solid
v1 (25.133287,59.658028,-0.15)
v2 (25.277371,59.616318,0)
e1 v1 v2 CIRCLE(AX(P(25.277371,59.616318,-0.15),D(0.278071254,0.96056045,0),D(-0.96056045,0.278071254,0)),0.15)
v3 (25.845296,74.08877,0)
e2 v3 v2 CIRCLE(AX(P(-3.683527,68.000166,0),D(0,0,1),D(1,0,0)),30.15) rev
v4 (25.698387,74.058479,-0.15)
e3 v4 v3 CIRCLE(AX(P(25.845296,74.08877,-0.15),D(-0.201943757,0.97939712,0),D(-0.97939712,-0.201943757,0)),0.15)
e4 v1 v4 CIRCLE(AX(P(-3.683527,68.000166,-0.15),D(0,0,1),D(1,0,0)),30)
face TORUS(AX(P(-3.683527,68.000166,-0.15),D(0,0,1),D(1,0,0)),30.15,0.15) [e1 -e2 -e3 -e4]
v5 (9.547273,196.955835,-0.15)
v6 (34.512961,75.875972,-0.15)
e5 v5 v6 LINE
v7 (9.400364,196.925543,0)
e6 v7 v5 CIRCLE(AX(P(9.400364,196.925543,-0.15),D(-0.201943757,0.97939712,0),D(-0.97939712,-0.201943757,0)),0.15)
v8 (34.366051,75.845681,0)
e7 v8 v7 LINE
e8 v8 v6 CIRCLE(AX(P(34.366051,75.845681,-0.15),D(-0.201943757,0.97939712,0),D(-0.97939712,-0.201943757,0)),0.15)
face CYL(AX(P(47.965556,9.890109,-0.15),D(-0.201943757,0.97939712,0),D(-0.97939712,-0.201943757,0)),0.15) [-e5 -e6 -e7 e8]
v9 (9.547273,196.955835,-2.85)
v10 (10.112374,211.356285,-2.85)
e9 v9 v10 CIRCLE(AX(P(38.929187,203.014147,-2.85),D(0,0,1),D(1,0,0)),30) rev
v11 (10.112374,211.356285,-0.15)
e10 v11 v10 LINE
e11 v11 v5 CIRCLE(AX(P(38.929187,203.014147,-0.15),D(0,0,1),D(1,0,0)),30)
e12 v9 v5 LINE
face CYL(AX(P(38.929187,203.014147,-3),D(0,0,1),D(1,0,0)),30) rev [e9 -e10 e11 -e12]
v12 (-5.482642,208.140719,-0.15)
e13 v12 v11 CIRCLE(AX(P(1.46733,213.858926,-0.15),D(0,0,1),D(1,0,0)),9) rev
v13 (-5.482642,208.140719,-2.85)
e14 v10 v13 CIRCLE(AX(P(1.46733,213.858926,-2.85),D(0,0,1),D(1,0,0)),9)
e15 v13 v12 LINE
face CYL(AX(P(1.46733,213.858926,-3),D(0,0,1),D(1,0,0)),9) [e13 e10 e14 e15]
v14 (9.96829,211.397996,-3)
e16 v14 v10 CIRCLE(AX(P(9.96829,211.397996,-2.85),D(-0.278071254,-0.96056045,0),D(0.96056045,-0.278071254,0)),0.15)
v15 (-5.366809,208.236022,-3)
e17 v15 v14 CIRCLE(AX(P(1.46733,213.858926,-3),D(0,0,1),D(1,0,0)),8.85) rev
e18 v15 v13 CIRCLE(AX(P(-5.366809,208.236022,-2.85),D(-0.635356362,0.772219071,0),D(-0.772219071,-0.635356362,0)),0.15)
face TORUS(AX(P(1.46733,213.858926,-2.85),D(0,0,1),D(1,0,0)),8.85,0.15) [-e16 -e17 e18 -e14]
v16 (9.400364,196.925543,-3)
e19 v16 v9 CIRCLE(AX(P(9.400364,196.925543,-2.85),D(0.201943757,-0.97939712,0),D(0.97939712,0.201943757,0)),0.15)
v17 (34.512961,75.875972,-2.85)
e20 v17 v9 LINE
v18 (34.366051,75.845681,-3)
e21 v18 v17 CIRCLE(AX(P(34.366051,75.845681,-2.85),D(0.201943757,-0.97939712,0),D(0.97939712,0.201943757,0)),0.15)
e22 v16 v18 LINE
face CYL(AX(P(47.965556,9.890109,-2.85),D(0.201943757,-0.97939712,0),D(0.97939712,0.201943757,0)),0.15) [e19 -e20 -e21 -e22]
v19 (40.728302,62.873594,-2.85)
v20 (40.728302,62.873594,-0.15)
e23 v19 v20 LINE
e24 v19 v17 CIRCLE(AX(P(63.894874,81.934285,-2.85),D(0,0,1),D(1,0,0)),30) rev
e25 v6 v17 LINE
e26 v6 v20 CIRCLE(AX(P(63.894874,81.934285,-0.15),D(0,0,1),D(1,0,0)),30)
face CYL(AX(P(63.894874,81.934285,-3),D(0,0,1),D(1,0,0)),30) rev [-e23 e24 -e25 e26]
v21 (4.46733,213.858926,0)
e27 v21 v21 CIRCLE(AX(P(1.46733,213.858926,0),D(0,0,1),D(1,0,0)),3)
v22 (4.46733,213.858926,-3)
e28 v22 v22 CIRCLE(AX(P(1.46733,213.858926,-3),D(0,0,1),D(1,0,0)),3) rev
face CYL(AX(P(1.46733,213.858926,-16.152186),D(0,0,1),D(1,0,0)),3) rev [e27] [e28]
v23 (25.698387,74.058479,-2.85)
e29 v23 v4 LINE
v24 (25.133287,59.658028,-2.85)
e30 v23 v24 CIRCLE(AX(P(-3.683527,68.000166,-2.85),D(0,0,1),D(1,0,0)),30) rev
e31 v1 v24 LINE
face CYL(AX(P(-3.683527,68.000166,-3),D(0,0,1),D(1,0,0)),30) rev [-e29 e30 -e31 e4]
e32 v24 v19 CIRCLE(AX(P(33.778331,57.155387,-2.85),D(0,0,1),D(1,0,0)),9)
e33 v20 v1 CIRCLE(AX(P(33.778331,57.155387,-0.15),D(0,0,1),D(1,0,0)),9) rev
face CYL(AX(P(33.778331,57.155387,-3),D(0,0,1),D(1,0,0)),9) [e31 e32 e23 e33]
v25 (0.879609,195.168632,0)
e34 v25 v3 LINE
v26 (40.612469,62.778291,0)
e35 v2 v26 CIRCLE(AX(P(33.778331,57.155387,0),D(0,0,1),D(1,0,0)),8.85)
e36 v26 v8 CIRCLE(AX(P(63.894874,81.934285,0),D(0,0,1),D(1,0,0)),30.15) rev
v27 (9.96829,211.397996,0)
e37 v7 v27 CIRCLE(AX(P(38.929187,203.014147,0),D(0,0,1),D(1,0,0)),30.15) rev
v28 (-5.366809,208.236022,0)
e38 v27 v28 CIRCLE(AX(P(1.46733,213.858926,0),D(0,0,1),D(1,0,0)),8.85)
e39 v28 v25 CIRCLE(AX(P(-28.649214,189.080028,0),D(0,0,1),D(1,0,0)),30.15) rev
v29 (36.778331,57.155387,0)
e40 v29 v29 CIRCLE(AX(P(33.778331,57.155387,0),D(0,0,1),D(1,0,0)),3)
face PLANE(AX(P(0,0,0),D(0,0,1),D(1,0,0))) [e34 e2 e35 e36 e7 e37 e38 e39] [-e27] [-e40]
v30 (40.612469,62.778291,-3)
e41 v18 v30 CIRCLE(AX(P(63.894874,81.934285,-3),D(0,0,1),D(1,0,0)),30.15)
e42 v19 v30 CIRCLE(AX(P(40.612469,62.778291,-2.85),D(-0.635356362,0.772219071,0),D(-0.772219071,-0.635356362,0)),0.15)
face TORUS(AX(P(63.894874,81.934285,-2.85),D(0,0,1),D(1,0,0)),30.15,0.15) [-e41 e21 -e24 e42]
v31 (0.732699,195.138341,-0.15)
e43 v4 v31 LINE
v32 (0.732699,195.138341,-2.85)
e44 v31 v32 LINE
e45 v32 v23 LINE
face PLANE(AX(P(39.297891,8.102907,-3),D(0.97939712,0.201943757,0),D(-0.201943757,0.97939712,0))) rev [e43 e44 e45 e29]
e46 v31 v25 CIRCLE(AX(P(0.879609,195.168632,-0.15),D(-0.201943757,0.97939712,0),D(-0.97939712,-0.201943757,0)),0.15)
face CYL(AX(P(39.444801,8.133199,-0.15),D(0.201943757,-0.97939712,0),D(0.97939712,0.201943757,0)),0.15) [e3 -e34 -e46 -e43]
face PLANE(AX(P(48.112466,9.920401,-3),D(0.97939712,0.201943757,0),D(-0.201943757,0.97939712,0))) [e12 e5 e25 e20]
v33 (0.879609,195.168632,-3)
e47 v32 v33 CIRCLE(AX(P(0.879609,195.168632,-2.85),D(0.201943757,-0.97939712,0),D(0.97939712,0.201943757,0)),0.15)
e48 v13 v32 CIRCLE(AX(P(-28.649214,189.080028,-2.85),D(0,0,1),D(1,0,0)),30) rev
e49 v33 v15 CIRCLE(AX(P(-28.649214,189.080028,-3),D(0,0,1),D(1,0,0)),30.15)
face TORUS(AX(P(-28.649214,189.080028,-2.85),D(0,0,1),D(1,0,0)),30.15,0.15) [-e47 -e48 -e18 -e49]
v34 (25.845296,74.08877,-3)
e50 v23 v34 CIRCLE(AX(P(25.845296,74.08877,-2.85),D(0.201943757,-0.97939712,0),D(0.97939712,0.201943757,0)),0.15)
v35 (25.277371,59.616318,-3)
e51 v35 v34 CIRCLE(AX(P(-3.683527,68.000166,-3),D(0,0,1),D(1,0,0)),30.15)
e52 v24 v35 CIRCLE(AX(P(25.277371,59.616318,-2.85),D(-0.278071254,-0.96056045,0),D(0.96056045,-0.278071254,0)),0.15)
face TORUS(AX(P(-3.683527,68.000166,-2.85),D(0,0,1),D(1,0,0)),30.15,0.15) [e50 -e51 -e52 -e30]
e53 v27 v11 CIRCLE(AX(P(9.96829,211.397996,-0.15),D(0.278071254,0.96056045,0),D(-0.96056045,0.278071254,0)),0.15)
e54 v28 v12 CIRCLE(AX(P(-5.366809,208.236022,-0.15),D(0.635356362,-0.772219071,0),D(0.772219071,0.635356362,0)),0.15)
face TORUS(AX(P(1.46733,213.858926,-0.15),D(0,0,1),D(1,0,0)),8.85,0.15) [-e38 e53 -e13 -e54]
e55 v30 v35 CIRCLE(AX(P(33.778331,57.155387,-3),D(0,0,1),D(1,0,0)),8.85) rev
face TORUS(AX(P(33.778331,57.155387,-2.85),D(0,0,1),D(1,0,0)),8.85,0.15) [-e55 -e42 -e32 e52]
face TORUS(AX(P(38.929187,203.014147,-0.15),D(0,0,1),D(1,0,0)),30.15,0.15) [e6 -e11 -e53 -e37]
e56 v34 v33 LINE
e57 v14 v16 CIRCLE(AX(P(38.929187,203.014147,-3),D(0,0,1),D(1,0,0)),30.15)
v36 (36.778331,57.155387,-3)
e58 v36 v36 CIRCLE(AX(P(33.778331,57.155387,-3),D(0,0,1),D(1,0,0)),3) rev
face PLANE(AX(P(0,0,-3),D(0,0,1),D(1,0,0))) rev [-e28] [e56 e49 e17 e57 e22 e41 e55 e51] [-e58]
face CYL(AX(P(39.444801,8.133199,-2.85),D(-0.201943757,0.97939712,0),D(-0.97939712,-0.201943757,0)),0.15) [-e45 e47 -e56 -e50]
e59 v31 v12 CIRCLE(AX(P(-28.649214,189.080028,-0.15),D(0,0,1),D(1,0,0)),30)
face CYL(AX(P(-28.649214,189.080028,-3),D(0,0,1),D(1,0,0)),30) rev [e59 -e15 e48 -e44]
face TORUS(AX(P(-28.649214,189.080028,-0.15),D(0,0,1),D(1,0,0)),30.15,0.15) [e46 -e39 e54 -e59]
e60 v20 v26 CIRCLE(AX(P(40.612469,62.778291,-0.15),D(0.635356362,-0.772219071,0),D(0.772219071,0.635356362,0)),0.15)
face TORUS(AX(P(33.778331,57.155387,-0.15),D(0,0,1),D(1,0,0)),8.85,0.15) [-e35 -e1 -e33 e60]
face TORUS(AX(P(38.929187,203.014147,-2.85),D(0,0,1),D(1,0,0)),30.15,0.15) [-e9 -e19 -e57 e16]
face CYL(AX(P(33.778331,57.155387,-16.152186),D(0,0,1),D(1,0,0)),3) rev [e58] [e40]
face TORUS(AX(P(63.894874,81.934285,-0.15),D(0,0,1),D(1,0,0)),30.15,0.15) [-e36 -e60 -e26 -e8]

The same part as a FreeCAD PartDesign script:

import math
import FreeCAD as App
import Part
import Sketcher

V = App.Vector
Q = App.Units.Quantity


def edges_at(feature, points):
    """Names of the edges that pass closest to the given points."""
    edges = feature.Shape.Edges
    near = lambda p: min(range(len(edges)), key=lambda i: edges[i].distToShape(Part.Vertex(*p))[0])
    return sorted({f"Edge{near(p) + 1}" for p in points})

doc = App.newDocument("Part")
body = doc.addObject("PartDesign::Body", "Body")

sketch1 = body.newObject("Sketcher::SketchObject", "Sketch")
sketch1.AttachmentSupport = (doc.getObject("XY_Plane"), [""])
sketch1.MapMode = "FlatFace"
sketch1.addGeometry(Part.ArcOfCircle(Part.Circle(V(1.5, 213.9, 0), V(0, 0, 1), 9), math.radians(-48), math.radians(252)), False)
sketch1.addGeometry(Part.LineSegment(V(-1.4, 205.3, 0), V(27.8, 63.9, 0)), False)
sketch1.addGeometry(Part.ArcOfCircle(Part.Circle(V(33.8, 57.2, 0), V(0, 0, 1), 9), math.radians(132), math.radians(432)), False)
sketch1.addGeometry(Part.LineSegment(V(36.6, 65.7, 0), V(7.4, 207.1, 0)), False)
sketch1.addGeometry(Part.ArcOfCircle(Part.Circle(V(33.8, 57.2, 0), V(0, 0, 1), 4.5), math.radians(12), math.radians(192)), False)
sketch1.addGeometry(Part.ArcOfCircle(Part.Circle(V(33.8, 57.2, 0), V(0, 0, 1), 4.5), math.radians(-168), math.radians(12)), False)
sketch1.addGeometry(Part.ArcOfCircle(Part.Circle(V(1.5, 213.9, 0), V(0, 0, 1), 4.5), math.radians(12), math.radians(192)), False)
sketch1.addGeometry(Part.ArcOfCircle(Part.Circle(V(1.5, 213.9, 0), V(0, 0, 1), 4.5), math.radians(-168), math.radians(12)), False)
sketch1.addConstraint(Sketcher.Constraint("Coincident", 0, 2, 1, 1))
sketch1.addConstraint(Sketcher.Constraint("Coincident", 1, 2, 2, 1))
sketch1.addConstraint(Sketcher.Constraint("Coincident", 2, 2, 3, 1))
sketch1.addConstraint(Sketcher.Constraint("Coincident", 3, 2, 0, 1))
sketch1.addConstraint(Sketcher.Constraint("Tangent", 4, 1, 5, 2))
sketch1.addConstraint(Sketcher.Constraint("Coincident", 5, 1, 4, 2))
sketch1.addConstraint(Sketcher.Constraint("Tangent", 6, 1, 7, 2))
sketch1.addConstraint(Sketcher.Constraint("Coincident", 7, 1, 6, 2))
sketch1.addConstraint(Sketcher.Constraint("Coincident", 4, 3, 2, 3))
sketch1.addConstraint(Sketcher.Constraint("Coincident", 6, 3, 0, 3))
sketch1.addConstraint(Sketcher.Constraint("Equal", 0, 2))
sketch1.addConstraint(Sketcher.Constraint("Equal", 5, 6))
sketch1.addConstraint(Sketcher.Constraint("Parallel", 1, 3))
sketch1.addConstraint(Sketcher.Constraint("Equal", 1, 3))
sketch1.addConstraint(Sketcher.Constraint("Radius", 0, Q("9 mm")))
sketch1.addConstraint(Sketcher.Constraint("Radius", 4, Q("4.5 mm")))
sketch1.addConstraint(Sketcher.Constraint("DistanceX", 0, 3, 2, 3, Q("32.311001 mm")))
sketch1.addConstraint(Sketcher.Constraint("DistanceY", 2, 3, 1, 2, Q("6.724898 mm")))
sketch1.addConstraint(Sketcher.Constraint("DistanceX", -1, 1, 0, 3, Q("1.46733 mm")))
sketch1.addConstraint(Sketcher.Constraint("DistanceX", 0, 2, -1, 1, Q("1.365962 mm")))
sketch1.addConstraint(Sketcher.Constraint("DistanceY", -1, 1, 2, 2, Q("65.697779 mm")))
sketch1.addConstraint(Sketcher.Constraint("DistanceY", -1, 1, 3, 2, Q("207.134028 mm")))
sketch1.addConstraint(Sketcher.Constraint("DistanceY", -1, 1, 5, 1, Q("56.24664 mm")))
sketch1.addConstraint(Sketcher.Constraint("DistanceY", -1, 1, 7, 1, Q("212.950179 mm")))
sketch1.addConstraint(Sketcher.Constraint("DistanceX", 1, 2, 4, 1, Q("10.38857 mm")))
sketch1.addConstraint(Sketcher.Constraint("DistanceX", 0, 2, 6, 1, Q("7.240578 mm")))
pad1 = body.newObject("PartDesign::Pad", "Pad")
pad1.Profile = sketch1
pad1.Length = 3
pad1.Reversed = True
doc.recompute()

fillet = body.newObject("PartDesign::Fillet", "Fillet")
fillet.Base = (pad1, edges_at(pad1, [
    (-1.366, 205.317, -1.5),
    (7.449, 207.134, -1.5),
    (36.612, 65.698, -1.5),
    (27.797, 63.88, -1.5),
]))
fillet.Radius = 30
doc.recompute()

fillet2 = body.newObject("PartDesign::Fillet", "Fillet001")
fillet2.Base = (fillet, edges_at(fillet, [
    (35.596, 48.341, 0),
    (35.596, 48.341, -3),
    (22.03, 136.416, 0),
    (22.03, 136.416, -3),
    (0.559, 218.266, -3),
    (13.216, 134.598, 0),
    (13.216, 134.598, -3),
    (-0.35, 222.674, 0),
    (-0.35, 222.674, -3),
    (36.828, 68.996, 0),
    (36.828, 68.996, -3),
    (26.293, 66.824, 0),
    (26.293, 66.824, -3),
    (-1.583, 202.018, 0),
    (34.687, 52.748, -3),
    (-1.583, 202.018, -3),
    (8.952, 204.19, 0),
    (8.952, 204.19, -3),
    (34.687, 52.748, 0),
    (0.559, 218.266, 0),
]))
fillet2.Radius = 0.15

sketch2 = body.newObject("Sketcher::SketchObject", "Sketch001")
sketch2.AttachmentSupport = (doc.getObject("XY_Plane"), [""])
sketch2.MapMode = "FlatFace"
sketch2.addGeometry(Part.Circle(V(1.5, 213.9, 0), V(0, 0, 1), 4.7), False)
sketch2.addGeometry(Part.Circle(V(1.5, 213.9, 0), V(0, 0, 1), 3), False)
sketch2.addGeometry(Part.Circle(V(33.8, 57.2, 0), V(0, 0, 1), 4.7), False)
sketch2.addGeometry(Part.Circle(V(33.8, 57.2, 0), V(0, 0, 1), 3), False)
sketch2.addConstraint(Sketcher.Constraint("Coincident", 1, 3, 0, 3))
sketch2.addConstraint(Sketcher.Constraint("Coincident", 3, 3, 2, 3))
sketch2.addConstraint(Sketcher.Constraint("Equal", 0, 2))
sketch2.addConstraint(Sketcher.Constraint("Equal", 1, 3))
sketch2.addConstraint(Sketcher.Constraint("Diameter", 1, Q("6 mm")))
sketch2.addConstraint(Sketcher.Constraint("Diameter", 0, Q("9.3 mm")))
sketch2.addConstraint(Sketcher.Constraint("DistanceX", 0, 3, 2, 3, Q("32.311001 mm")))
sketch2.addConstraint(Sketcher.Constraint("DistanceX", -1, 1, 0, 3, Q("1.46733 mm")))
sketch2.addConstraint(Sketcher.Constraint("DistanceY", 2, 3, 0, 3, Q("156.703539 mm")))
sketch2.addConstraint(Sketcher.Constraint("DistanceY", -1, 1, 0, 3, Q("213.858926 mm")))
pad2 = body.newObject("PartDesign::Pad", "Pad001")
pad2.Profile = sketch2
pad2.Length = 3
pad2.Reversed = True

doc.recompute()
